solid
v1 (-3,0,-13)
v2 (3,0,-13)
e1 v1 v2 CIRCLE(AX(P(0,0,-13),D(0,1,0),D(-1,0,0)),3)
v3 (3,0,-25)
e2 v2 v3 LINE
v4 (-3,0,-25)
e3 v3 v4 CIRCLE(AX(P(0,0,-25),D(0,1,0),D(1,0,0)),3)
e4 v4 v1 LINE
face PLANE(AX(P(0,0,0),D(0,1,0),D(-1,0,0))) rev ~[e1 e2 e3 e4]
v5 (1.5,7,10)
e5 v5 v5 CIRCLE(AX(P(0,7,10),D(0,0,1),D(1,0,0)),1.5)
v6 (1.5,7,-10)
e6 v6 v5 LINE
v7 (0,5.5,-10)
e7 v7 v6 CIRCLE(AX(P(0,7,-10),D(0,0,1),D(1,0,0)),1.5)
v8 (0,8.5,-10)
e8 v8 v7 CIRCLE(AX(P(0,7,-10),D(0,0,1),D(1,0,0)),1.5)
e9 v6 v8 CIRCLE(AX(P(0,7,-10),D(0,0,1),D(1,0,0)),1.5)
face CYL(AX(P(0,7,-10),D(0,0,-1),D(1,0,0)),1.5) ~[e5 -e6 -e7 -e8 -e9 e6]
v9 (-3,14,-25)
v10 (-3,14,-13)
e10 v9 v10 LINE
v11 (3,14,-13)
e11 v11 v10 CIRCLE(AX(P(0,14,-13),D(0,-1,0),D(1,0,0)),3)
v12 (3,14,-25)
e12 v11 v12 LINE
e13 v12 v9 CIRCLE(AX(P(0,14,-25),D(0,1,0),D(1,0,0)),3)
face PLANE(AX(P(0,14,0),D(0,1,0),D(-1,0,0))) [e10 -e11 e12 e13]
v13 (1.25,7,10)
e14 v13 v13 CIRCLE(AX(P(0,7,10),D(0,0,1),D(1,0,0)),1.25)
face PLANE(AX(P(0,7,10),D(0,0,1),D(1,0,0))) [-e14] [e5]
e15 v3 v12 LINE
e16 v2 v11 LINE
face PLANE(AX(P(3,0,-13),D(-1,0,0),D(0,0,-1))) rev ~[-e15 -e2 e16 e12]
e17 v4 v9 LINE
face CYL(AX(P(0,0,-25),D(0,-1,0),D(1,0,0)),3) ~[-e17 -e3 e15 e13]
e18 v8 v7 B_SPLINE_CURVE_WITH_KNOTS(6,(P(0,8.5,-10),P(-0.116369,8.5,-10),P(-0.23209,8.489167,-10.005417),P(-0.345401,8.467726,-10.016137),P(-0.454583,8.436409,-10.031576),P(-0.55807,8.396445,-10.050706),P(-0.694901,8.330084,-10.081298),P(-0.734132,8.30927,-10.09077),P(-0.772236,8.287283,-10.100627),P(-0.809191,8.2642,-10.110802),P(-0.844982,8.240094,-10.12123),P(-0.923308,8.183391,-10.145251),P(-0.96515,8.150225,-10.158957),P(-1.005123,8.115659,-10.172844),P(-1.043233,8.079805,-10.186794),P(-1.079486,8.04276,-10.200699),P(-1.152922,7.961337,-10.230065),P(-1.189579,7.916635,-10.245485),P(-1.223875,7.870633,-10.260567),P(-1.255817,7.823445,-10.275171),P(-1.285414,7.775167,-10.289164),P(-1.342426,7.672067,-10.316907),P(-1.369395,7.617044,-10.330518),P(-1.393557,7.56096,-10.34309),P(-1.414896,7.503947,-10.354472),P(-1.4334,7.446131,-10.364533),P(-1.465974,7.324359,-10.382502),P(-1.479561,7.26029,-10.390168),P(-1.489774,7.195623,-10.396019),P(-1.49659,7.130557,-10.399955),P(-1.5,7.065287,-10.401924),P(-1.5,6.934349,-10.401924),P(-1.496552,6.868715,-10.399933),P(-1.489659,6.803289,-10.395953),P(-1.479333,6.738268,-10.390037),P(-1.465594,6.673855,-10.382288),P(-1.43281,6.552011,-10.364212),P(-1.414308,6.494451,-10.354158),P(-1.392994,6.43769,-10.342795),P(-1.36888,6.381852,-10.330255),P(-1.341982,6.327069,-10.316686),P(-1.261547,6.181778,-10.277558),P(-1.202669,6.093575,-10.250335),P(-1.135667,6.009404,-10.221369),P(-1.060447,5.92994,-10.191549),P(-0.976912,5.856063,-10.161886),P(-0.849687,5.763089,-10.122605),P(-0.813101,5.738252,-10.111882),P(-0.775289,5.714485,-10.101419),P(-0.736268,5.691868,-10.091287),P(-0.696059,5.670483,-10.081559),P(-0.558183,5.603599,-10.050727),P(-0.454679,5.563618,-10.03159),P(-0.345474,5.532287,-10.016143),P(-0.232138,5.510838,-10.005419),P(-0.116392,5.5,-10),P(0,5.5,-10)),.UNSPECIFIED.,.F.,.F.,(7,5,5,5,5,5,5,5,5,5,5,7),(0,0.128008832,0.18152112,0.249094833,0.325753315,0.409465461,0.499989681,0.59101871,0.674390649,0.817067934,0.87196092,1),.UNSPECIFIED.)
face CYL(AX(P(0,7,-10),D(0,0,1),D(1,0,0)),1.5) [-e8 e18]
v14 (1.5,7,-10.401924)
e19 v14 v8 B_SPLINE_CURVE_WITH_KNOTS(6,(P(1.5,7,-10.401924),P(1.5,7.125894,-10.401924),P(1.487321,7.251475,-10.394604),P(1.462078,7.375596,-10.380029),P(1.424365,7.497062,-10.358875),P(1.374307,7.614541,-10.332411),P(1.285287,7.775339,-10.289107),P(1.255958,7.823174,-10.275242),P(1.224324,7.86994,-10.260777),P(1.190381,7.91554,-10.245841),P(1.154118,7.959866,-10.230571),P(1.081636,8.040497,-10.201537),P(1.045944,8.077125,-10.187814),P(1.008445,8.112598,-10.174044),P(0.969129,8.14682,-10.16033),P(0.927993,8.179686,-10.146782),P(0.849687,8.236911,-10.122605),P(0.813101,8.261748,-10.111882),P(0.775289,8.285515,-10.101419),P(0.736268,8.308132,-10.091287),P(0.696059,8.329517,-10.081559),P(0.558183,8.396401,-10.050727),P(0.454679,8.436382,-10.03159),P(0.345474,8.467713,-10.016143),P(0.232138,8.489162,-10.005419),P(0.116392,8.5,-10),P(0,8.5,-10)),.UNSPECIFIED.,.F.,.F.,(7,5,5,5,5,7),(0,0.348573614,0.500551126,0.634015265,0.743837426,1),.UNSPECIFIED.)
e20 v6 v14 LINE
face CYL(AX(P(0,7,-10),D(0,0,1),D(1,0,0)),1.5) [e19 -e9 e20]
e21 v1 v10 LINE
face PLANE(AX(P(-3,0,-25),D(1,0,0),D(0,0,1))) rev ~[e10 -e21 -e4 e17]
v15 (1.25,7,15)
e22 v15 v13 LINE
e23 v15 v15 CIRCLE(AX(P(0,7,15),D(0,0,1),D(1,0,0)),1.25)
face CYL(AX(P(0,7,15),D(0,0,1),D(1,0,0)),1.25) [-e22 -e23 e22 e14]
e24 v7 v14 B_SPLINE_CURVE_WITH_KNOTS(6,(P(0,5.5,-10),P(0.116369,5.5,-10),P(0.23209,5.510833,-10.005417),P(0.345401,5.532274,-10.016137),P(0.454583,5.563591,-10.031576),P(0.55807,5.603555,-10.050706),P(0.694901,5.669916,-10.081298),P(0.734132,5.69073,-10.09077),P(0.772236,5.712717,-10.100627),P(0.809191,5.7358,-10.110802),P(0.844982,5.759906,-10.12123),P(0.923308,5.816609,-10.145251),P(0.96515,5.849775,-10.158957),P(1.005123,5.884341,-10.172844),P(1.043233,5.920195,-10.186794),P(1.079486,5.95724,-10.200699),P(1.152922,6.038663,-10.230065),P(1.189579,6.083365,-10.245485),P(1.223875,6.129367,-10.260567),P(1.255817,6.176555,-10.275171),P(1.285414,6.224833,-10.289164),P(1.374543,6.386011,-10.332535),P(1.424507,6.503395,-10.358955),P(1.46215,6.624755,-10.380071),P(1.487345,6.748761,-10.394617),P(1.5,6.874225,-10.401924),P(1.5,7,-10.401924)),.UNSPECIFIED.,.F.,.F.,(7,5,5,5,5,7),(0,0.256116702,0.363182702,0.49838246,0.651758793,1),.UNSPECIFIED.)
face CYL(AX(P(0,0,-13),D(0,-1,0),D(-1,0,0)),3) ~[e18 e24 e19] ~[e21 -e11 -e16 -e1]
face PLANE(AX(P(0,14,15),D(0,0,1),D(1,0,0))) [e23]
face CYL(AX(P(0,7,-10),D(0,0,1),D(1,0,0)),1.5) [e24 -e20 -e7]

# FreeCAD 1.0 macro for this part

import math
import FreeCAD as App
import Part
import Sketcher

V = App.Vector
Q = App.Units.Quantity

doc = App.newDocument("Part")
body = doc.addObject("PartDesign::Body", "Body")

# Sketch on XZ plane
sketch1 = doc.addObject("Sketcher::SketchObject", "Sketch")
body.addObject(sketch1)
sketch1.AttachmentSupport = (doc.XZ_Plane, [""])
sketch1.MapMode = "FlatFace"
sketch1.addGeometry(Part.ArcOfCircle(Part.Circle(V(0, -13, 0), V(0, 0, 1), 3), math.radians(0), math.radians(180)), False)
sketch1.addGeometry(Part.LineSegment(V(3, -13, 0), V(3, -25, 0)), False)
sketch1.addGeometry(Part.ArcOfCircle(Part.Circle(V(0, -25, 0), V(0, 0, 1), 3), math.radians(180), math.radians(360)), False)
sketch1.addGeometry(Part.LineSegment(V(-3, -25, 0), V(-3, -13, 0)), False)
sketch1.addConstraint(Sketcher.Constraint("Tangent", 0, 1, 1, 1))
sketch1.addConstraint(Sketcher.Constraint("Tangent", 1, 2, 2, 2))
sketch1.addConstraint(Sketcher.Constraint("Tangent", 2, 1, 3, 1))
sketch1.addConstraint(Sketcher.Constraint("Tangent", 3, 2, 0, 2))
sketch1.addConstraint(Sketcher.Constraint("Vertical", 1))
sketch1.addConstraint(Sketcher.Constraint("Vertical", 3))
sketch1.addConstraint(Sketcher.Constraint("PointOnObject", 0, 3, -2))
sketch1.addConstraint(Sketcher.Constraint("Radius", 0, Q("3 mm")))
sketch1.addConstraint(Sketcher.Constraint("DistanceY", 1, 2, 1, 1, Q("12 mm")))
sketch1.addConstraint(Sketcher.Constraint("DistanceY", 0, 3, -1, 1, Q("13 mm")))
pad1 = doc.addObject("PartDesign::Pad", "Pad")
body.addObject(pad1)
pad1.Profile = sketch1
pad1.Length = 14
pad1.Reversed = True

# Sketch on XY plane
sketch2 = doc.addObject("Sketcher::SketchObject", "Sketch001")
body.addObject(sketch2)
sketch2.AttachmentSupport = (doc.XY_Plane, [""])
sketch2.MapMode = "FlatFace"
sketch2.AttachmentOffset = App.Placement(V(0, 0, -10), App.Rotation())
sketch2.addGeometry(Part.Circle(V(0, 7, 0), V(0, 0, 1), 1.5), False)
sketch2.addConstraint(Sketcher.Constraint("PointOnObject", 0, 3, -2))
sketch2.addConstraint(Sketcher.Constraint("Diameter", 0, Q("3 mm")))
sketch2.addConstraint(Sketcher.Constraint("DistanceY", -1, 1, 0, 3, Q("7 mm")))
pad2 = doc.addObject("PartDesign::Pad", "Pad001")
body.addObject(pad2)
pad2.Profile = sketch2
pad2.Type = "TwoLengths"
pad2.Length = 25
pad2.Length2 = 2

# Sketch on XY plane
sketch3 = doc.addObject("Sketcher::SketchObject", "Sketch002")
body.addObject(sketch3)
sketch3.AttachmentSupport = (doc.XY_Plane, [""])
sketch3.MapMode = "FlatFace"
sketch3.AttachmentOffset = App.Placement(V(0, 0, 15), App.Rotation())
sketch3.addGeometry(Part.Circle(V(0, 7, 0), V(0, 0, 1), 1.5), False)
sketch3.addGeometry(Part.Circle(V(0, 7, 0), V(0, 0, 1), 1.2), False)
sketch3.addConstraint(Sketcher.Constraint("Coincident", 1, 3, 0, 3))
sketch3.addConstraint(Sketcher.Constraint("PointOnObject", 0, 3, -2))
sketch3.addConstraint(Sketcher.Constraint("Diameter", 1, Q("2.5 mm")))
sketch3.addConstraint(Sketcher.Constraint("Diameter", 0, Q("3 mm")))
sketch3.addConstraint(Sketcher.Constraint("DistanceY", -1, 1, 0, 3, Q("7 mm")))
pocket1 = doc.addObject("PartDesign::Pocket", "Pocket")
body.addObject(pocket1)
pocket1.Profile = sketch3
pocket1.Length = 5

doc.recompute()
